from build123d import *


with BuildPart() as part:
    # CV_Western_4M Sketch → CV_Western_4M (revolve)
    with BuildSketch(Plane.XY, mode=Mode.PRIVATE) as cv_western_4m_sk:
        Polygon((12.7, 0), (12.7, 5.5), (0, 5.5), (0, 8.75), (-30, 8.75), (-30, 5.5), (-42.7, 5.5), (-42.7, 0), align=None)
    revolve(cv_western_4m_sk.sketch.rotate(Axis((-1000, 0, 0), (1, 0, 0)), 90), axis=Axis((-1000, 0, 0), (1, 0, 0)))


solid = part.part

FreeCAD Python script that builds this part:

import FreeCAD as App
import Part
import Sketcher

doc = App.newDocument("Part")
params = doc.addObject("Spreadsheet::Sheet", "Params")
for row, (alias, value) in enumerate([
    ("sketch1_width", "30 mm"),
    ("sketch1_width2", "12.7 mm"),
    ("sketch1_height", "5.5 mm"),
    ("sketch1_height2", "3.25 mm"),
    ("revolution_angle", "360 deg"),
], start=1):
    params.set(f"A{row}", alias)
    params.set(f"B{row}", "=" + value)
    params.setAlias(f"B{row}", alias)

body = doc.addObject("PartDesign::Body", "Body")

sketch1 = doc.addObject("Sketcher::SketchObject", "Sketch")
body.addObject(sketch1)
sketch1.AttachmentSupport = (doc.XY_Plane, [""])
sketch1.MapMode = "FlatFace"
sketch1.addGeometry(Part.LineSegment(App.Vector(12.7, 0, 0), App.Vector(12.7, 5.5, 0)), False)
sketch1.addGeometry(Part.LineSegment(App.Vector(12.7, 5.5, 0), App.Vector(0, 5.5, 0)), False)
sketch1.addGeometry(Part.LineSegment(App.Vector(0, 5.5, 0), App.Vector(0, 8.8, 0)), False)
sketch1.addGeometry(Part.LineSegment(App.Vector(0, 8.8, 0), App.Vector(-30, 8.8, 0)), False)
sketch1.addGeometry(Part.LineSegment(App.Vector(-30, 8.8, 0), App.Vector(-30, 5.5, 0)), False)
sketch1.addGeometry(Part.LineSegment(App.Vector(-30, 5.5, 0), App.Vector(-42.7, 5.5, 0)), False)
sketch1.addGeometry(Part.LineSegment(App.Vector(-42.7, 5.5, 0), App.Vector(-42.7, 0, 0)), False)
sketch1.addGeometry(Part.LineSegment(App.Vector(-42.7, 0, 0), App.Vector(12.7, 0, 0)), False)
sketch1.addConstraint(Sketcher.Constraint("Coincident", 0, 2, 1, 1))
sketch1.addConstraint(Sketcher.Constraint("Coincident", 1, 2, 2, 1))
sketch1.addConstraint(Sketcher.Constraint("Coincident", 2, 2, 3, 1))
sketch1.addConstraint(Sketcher.Constraint("Coincident", 3, 2, 4, 1))
sketch1.addConstraint(Sketcher.Constraint("Coincident", 4, 2, 5, 1))
sketch1.addConstraint(Sketcher.Constraint("Coincident", 5, 2, 6, 1))
sketch1.addConstraint(Sketcher.Constraint("Coincident", 6, 2, 7, 1))
sketch1.addConstraint(Sketcher.Constraint("Coincident", 7, 2, 0, 1))
sketch1.addConstraint(Sketcher.Constraint("Vertical", 0))
sketch1.addConstraint(Sketcher.Constraint("Horizontal", 1))
sketch1.addConstraint(Sketcher.Constraint("Vertical", 2))
sketch1.addConstraint(Sketcher.Constraint("Horizontal", 3))
sketch1.addConstraint(Sketcher.Constraint("Vertical", 4))
sketch1.addConstraint(Sketcher.Constraint("Horizontal", 5))
sketch1.addConstraint(Sketcher.Constraint("Vertical", 6))
sketch1.addConstraint(Sketcher.Constraint("Horizontal", 7))
sketch1.addConstraint(Sketcher.Constraint("PointOnObject", 1, 2, -2))
sketch1.addConstraint(Sketcher.Constraint("PointOnObject", 6, 2, -1))
sketch1.addConstraint(Sketcher.Constraint("Horizontal", 1, 2, 4, 2))
sketch1.addConstraint(Sketcher.Constraint("Equal", 1, 5))
sketch1.addConstraint(Sketcher.Constraint("DistanceX", 3, 2, 3, 1, 30.0))
sketch1.addConstraint(Sketcher.Constraint("DistanceX", 1, 2, 1, 1, 12.7))
sketch1.addConstraint(Sketcher.Constraint("DistanceY", 0, 1, 0, 2, 5.5))
sketch1.addConstraint(Sketcher.Constraint("DistanceY", 2, 1, 2, 2, 3.25))
sketch1.setExpression("Constraints[20]", "Params.sketch1_width")
sketch1.setExpression("Constraints[21]", "Params.sketch1_width2")
sketch1.setExpression("Constraints[22]", "Params.sketch1_height")
sketch1.setExpression("Constraints[23]", "Params.sketch1_height2")
revolution = doc.addObject("PartDesign::Revolution", "Revolution")
body.addObject(revolution)
revolution.Profile = sketch1
revolution.ReferenceAxis = (sketch1, ["H_Axis"])
revolution.setExpression("Angle", "Params.revolution_angle")

doc.recompute()
